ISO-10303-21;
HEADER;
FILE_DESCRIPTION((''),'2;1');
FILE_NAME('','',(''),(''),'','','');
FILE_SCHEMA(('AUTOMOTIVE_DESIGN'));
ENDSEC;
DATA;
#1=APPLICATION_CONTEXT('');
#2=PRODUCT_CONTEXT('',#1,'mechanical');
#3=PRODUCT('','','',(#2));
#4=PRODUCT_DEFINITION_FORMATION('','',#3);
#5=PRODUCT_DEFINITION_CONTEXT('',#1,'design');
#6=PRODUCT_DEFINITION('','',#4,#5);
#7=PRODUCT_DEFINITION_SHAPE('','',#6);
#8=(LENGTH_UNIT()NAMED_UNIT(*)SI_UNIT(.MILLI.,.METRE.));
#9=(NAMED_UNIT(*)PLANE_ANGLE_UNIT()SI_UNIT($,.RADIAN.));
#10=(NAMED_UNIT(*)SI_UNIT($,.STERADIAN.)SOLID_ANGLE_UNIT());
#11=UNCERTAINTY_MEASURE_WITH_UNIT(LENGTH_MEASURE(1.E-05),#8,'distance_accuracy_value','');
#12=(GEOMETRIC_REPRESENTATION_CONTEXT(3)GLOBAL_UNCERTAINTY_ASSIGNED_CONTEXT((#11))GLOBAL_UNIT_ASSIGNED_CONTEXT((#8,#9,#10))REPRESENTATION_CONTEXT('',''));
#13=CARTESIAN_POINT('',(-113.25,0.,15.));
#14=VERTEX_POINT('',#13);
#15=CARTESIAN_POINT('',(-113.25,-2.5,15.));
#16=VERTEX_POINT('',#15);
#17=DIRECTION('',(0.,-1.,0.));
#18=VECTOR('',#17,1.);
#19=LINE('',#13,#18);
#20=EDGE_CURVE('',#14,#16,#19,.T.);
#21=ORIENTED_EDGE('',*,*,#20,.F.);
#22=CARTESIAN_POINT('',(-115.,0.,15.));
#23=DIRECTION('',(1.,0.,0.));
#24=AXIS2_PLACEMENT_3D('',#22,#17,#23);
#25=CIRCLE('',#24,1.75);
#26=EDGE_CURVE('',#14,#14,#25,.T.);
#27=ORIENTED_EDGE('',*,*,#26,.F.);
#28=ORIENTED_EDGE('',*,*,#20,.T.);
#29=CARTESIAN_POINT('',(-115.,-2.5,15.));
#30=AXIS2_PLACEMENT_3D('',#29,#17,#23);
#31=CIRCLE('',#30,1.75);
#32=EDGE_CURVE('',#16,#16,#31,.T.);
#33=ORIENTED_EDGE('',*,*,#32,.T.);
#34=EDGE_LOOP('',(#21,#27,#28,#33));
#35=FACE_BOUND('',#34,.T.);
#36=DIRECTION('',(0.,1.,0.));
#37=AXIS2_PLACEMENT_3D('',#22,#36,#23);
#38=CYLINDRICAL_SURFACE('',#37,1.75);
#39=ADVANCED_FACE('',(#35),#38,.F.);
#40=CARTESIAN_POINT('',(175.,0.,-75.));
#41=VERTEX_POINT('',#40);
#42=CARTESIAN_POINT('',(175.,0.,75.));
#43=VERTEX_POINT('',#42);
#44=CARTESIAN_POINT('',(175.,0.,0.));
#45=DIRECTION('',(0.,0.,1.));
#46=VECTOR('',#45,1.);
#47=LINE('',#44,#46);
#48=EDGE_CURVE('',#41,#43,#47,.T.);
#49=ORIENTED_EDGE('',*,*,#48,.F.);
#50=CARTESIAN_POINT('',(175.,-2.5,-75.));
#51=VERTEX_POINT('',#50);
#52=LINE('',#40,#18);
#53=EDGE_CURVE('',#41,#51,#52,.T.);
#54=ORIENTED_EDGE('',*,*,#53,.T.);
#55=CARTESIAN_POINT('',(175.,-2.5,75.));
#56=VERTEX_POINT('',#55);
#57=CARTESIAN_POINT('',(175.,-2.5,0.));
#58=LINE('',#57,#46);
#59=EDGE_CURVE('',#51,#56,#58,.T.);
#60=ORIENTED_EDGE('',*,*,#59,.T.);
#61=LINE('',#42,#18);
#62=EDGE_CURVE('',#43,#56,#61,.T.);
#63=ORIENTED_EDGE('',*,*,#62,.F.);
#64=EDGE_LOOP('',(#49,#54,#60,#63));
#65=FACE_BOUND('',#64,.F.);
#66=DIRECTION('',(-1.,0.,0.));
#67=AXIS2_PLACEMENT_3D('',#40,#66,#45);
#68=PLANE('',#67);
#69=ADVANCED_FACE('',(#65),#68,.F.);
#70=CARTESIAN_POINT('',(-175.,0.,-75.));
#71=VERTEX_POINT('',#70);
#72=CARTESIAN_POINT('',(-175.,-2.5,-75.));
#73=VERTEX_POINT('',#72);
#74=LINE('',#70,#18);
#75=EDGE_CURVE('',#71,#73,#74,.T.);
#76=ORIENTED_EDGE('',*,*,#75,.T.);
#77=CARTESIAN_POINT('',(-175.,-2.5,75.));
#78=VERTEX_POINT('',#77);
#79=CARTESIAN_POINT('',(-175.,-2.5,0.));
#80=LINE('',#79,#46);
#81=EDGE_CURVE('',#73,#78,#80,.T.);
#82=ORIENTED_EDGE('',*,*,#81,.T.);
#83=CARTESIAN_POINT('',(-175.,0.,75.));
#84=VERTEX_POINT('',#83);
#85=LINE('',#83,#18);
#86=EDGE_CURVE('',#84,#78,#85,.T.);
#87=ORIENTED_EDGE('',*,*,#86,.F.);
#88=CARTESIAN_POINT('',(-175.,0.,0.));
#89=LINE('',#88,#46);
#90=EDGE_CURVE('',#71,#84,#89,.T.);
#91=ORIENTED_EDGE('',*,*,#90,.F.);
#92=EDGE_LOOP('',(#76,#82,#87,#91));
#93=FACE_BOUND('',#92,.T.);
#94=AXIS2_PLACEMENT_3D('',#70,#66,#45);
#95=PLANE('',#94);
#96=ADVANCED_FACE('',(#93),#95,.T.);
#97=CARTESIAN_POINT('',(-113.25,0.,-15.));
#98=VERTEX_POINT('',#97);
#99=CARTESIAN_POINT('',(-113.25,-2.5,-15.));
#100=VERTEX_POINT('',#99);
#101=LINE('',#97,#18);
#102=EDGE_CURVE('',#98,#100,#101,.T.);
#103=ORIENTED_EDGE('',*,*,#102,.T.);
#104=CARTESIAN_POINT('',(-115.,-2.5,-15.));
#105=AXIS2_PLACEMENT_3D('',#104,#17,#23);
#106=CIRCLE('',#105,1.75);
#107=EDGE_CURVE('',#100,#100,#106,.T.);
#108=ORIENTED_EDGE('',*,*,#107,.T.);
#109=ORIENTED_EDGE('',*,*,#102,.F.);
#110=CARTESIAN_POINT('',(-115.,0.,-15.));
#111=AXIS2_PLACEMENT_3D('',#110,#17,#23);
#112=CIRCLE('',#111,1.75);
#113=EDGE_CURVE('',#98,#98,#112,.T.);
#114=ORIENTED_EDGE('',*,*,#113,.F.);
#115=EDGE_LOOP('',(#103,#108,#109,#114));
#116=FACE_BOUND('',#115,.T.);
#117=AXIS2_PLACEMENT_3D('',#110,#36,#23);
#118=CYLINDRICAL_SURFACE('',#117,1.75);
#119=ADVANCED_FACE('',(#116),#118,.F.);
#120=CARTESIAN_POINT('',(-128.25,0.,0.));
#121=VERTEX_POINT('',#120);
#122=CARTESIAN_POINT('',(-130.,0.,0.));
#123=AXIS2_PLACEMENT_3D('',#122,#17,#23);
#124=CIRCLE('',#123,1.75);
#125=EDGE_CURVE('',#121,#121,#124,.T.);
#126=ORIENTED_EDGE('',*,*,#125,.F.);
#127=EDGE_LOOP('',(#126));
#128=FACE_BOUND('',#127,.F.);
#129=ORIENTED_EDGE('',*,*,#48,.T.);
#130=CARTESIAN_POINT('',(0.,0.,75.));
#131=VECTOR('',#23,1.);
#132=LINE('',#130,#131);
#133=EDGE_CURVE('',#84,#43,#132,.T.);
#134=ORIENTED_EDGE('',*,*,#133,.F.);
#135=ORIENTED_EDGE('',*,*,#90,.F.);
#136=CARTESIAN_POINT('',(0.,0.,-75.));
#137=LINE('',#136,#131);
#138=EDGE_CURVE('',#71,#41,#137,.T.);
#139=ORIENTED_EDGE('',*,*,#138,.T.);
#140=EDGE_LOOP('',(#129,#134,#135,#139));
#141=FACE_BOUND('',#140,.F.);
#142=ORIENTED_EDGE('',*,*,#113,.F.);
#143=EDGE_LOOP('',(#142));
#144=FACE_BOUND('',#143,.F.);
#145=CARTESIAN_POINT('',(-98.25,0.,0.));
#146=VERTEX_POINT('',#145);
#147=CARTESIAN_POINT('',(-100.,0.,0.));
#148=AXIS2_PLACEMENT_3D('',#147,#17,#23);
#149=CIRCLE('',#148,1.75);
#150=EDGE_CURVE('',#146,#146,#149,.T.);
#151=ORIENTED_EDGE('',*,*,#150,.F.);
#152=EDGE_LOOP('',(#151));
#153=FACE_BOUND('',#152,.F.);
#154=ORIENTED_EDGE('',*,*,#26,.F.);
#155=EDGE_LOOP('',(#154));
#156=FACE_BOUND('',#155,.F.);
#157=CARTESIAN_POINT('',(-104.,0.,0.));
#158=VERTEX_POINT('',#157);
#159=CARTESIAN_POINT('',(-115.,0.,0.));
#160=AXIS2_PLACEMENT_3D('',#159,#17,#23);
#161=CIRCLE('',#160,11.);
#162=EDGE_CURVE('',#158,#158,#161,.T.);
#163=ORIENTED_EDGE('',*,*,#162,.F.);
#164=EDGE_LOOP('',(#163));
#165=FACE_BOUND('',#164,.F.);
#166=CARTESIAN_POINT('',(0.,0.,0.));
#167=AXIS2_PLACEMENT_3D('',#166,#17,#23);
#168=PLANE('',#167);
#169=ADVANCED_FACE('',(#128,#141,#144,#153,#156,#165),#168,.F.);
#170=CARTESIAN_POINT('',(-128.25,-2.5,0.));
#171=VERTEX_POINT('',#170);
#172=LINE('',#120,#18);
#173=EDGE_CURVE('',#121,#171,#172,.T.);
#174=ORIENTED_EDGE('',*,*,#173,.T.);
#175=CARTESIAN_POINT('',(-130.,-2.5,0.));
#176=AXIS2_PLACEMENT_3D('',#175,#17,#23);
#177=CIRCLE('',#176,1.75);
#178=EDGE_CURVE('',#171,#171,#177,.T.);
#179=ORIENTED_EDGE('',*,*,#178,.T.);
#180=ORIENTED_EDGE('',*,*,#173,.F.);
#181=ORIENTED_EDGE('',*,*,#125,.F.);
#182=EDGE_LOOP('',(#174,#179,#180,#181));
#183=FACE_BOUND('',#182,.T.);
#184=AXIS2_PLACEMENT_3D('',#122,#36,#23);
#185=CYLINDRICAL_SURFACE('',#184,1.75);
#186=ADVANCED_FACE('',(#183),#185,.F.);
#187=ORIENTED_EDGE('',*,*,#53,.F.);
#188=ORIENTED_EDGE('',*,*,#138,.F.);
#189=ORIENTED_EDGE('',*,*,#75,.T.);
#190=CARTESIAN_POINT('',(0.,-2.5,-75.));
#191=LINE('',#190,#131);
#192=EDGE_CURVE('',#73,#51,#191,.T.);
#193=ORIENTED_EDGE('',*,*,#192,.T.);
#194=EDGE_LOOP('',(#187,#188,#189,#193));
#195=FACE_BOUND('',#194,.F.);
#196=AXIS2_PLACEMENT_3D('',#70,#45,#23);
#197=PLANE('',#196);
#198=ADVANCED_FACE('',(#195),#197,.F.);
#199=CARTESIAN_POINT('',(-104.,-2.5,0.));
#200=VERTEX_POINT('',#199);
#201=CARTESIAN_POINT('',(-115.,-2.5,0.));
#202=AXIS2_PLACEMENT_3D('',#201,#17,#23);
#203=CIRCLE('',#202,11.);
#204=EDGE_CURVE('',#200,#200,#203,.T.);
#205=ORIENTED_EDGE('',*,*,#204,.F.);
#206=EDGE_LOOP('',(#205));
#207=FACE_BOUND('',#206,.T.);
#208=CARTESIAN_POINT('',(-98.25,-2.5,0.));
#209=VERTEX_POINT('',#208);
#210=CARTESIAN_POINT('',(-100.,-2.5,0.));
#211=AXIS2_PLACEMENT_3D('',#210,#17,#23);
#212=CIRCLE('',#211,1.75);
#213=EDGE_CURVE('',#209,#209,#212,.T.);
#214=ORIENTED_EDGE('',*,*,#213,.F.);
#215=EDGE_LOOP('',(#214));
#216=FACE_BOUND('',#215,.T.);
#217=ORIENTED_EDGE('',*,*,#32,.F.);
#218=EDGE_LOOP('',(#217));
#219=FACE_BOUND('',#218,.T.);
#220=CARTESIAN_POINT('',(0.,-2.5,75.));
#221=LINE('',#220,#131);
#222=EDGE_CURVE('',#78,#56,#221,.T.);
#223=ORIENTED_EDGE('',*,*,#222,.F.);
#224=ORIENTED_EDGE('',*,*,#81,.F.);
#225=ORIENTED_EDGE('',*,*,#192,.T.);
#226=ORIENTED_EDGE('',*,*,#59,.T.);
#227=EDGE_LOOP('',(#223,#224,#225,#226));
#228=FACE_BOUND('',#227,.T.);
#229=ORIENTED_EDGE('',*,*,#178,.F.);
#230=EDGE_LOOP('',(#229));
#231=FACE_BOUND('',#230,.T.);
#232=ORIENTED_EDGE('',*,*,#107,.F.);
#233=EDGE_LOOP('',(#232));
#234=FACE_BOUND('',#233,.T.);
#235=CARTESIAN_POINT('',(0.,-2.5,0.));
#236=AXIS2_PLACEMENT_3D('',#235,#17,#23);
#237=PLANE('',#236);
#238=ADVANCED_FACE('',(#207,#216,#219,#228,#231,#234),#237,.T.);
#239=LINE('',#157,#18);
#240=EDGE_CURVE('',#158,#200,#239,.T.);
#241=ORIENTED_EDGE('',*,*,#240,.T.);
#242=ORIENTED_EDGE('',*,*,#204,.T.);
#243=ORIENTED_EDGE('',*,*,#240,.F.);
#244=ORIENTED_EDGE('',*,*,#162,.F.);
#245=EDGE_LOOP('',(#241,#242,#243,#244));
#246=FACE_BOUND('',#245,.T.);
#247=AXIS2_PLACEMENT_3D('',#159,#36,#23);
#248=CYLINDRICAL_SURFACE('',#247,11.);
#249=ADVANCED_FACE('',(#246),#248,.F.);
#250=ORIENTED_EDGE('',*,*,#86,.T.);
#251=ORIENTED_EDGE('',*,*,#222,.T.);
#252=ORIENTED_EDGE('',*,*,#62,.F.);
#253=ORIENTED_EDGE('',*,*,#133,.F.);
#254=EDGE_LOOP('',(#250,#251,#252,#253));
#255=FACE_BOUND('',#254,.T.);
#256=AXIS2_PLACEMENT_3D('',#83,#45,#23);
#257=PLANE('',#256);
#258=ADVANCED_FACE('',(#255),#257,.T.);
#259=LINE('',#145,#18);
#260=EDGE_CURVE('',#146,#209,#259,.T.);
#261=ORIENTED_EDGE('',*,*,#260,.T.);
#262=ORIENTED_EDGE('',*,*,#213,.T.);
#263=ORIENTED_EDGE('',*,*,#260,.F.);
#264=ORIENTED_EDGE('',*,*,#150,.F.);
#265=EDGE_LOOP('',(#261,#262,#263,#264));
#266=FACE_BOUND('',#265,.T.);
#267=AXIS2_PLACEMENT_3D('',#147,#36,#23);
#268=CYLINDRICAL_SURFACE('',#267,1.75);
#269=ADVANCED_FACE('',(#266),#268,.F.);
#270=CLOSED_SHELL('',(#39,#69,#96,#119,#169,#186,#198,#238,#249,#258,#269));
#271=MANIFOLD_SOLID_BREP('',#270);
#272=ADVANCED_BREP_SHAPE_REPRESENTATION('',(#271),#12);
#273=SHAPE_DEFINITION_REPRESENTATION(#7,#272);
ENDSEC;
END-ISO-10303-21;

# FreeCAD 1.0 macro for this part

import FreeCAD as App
import Part
import Sketcher
from FreeCAD import Vector

doc = App.newDocument("Part")
body = doc.addObject("PartDesign::Body", "Body")

sketch1 = body.newObject("Sketcher::SketchObject", "Sketch")
sketch1.AttachmentSupport = (doc.getObject("XZ_Plane"), [""])
sketch1.MapMode = "FlatFace"
sketch1.addGeometry([
    Part.LineSegment(Vector(-175, 75, 0), Vector(-175, -75, 0)),
    Part.LineSegment(Vector(-175, -75, 0), Vector(175, -75, 0)),
    Part.LineSegment(Vector(175, -75, 0), Vector(175, 75, 0)),
    Part.LineSegment(Vector(175, 75, 0), Vector(-175, 75, 0)),
    Part.Circle(Vector(-115, -15, 0), Vector(0, 0, 1), 1.8),
    Part.Circle(Vector(-130, 0, 0), Vector(0, 0, 1), 1.8),
    Part.Circle(Vector(-115, 0, 0), Vector(0, 0, 1), 11),
    Part.Circle(Vector(-100, 0, 0), Vector(0, 0, 1), 1.8),
    Part.Circle(Vector(-115, 15, 0), Vector(0, 0, 1), 1.8),
], False)
sketch1.addConstraint([
    Sketcher.Constraint("Coincident", 0, 2, 1, 1),
    Sketcher.Constraint("Coincident", 1, 2, 2, 1),
    Sketcher.Constraint("Coincident", 2, 2, 3, 1),
    Sketcher.Constraint("Coincident", 3, 2, 0, 1),
    Sketcher.Constraint("Vertical", 0),
    Sketcher.Constraint("Horizontal", 1),
    Sketcher.Constraint("Vertical", 2),
    Sketcher.Constraint("Horizontal", 3),
    Sketcher.Constraint("Equal", 4, 5),
    Sketcher.Constraint("Equal", 5, 7),
    Sketcher.Constraint("Equal", 7, 8),
    Sketcher.Constraint("Symmetric", 0, 2, 2, 2, -1, 1),
    Sketcher.Constraint("Symmetric", 4, 3, 8, 3, -1),
    Sketcher.Constraint("PointOnObject", 5, 3, -1),
    Sketcher.Constraint("PointOnObject", 6, 3, -1),
    Sketcher.Constraint("PointOnObject", 7, 3, -1),
    Sketcher.Constraint("Vertical", 4, 3, 6, 3),
    Sketcher.Constraint("Diameter", 6, 22.0),
    Sketcher.Constraint("Diameter", 4, 3.5),
    Sketcher.Constraint("DistanceX", 1, 1, 1, 2, 350.0),
    Sketcher.Constraint("DistanceY", 0, 2, 0, 1, 150.0),
    Sketcher.Constraint("DistanceX", 4, 3, -1, 1, 115.0),
    Sketcher.Constraint("DistanceY", 4, 3, -1, 1, 15.0),
    Sketcher.Constraint("DistanceX", 5, 3, -1, 1, 130.0),
    Sketcher.Constraint("DistanceX", 7, 3, -1, 1, 100.0),
])
pad1 = body.newObject("PartDesign::Pad", "Pad")
pad1.Profile = sketch1
pad1.Length = 2.5

doc.recompute()
